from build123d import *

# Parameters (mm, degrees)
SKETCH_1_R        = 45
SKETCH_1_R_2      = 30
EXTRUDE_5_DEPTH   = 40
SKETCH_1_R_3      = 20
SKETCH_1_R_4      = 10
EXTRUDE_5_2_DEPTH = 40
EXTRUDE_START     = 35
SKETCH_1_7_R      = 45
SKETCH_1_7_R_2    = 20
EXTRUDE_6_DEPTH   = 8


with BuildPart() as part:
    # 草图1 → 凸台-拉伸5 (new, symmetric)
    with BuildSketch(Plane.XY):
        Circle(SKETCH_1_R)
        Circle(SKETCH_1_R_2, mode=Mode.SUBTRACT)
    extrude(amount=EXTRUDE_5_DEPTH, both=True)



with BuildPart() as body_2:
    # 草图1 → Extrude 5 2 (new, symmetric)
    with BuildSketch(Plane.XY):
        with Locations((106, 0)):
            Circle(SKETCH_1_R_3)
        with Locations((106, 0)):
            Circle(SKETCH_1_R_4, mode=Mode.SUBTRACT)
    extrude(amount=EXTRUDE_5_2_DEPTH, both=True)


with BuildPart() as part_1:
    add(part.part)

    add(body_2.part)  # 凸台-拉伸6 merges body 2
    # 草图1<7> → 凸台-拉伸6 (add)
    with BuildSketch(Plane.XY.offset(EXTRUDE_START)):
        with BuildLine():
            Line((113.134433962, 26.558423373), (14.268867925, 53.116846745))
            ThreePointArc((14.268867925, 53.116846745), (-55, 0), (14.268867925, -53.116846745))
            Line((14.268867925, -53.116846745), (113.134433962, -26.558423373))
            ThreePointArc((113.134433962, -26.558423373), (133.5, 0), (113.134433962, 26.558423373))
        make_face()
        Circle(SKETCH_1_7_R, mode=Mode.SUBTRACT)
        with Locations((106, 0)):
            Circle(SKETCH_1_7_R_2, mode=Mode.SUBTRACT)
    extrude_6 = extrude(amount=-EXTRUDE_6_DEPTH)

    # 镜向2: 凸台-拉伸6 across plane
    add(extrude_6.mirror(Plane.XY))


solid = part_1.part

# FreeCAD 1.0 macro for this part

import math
import FreeCAD as App
import Part
import Sketcher

V = App.Vector
Q = App.Units.Quantity

doc = App.newDocument("Part")
body = doc.addObject("PartDesign::Body", "Body")

sketch1 = body.newObject("Sketcher::SketchObject", "Sketch")
sketch1.AttachmentSupport = (doc.getObject("XY_Plane"), [""])
sketch1.MapMode = "FlatFace"
sketch1.addGeometry(Part.Circle(V(0, 0, 0), V(0, 0, 1), 45), False)
sketch1.addGeometry(Part.Circle(V(0, 0, 0), V(0, 0, 1), 30), False)
sketch1.addConstraint(Sketcher.Constraint("Coincident", 0, 3, -1, 1))
sketch1.addConstraint(Sketcher.Constraint("Coincident", 1, 3, -1, 1))
sketch1.addConstraint(Sketcher.Constraint("Diameter", 0, Q("90 mm")))
sketch1.addConstraint(Sketcher.Constraint("Diameter", 1, Q("60 mm")))
pad1 = body.newObject("PartDesign::Pad", "Pad")
pad1.Profile = sketch1
pad1.Length = 80
pad1.Midplane = True
body2 = doc.addObject("PartDesign::Body", "Body001")

sketch2 = body2.newObject("Sketcher::SketchObject", "Sketch001")
sketch2.AttachmentSupport = (doc.getObject("XY_Plane001"), [""])
sketch2.MapMode = "FlatFace"
sketch2.addGeometry(Part.Circle(V(106, 0, 0), V(0, 0, 1), 20), False)
sketch2.addGeometry(Part.Circle(V(106, 0, 0), V(0, 0, 1), 10), False)
sketch2.addConstraint(Sketcher.Constraint("Coincident", 1, 3, 0, 3))
sketch2.addConstraint(Sketcher.Constraint("PointOnObject", 0, 3, -1))
sketch2.addConstraint(Sketcher.Constraint("Diameter", 0, Q("40 mm")))
sketch2.addConstraint(Sketcher.Constraint("Diameter", 1, Q("20 mm")))
sketch2.addConstraint(Sketcher.Constraint("DistanceX", -1, 1, 0, 3, Q("106 mm")))
pad2 = body2.newObject("PartDesign::Pad", "Pad001")
pad2.Profile = sketch2
pad2.Length = 80
pad2.Midplane = True
body.AllowCompound = True
doc.recompute()

boolean = body.newObject("PartDesign::Boolean", "Boolean")
boolean.Type = "Fuse"
boolean.addObjects([body2])

sketch3 = body.newObject("Sketcher::SketchObject", "Sketch002")
sketch3.AttachmentSupport = (doc.getObject("XY_Plane"), [""])
sketch3.MapMode = "FlatFace"
sketch3.AttachmentOffset = App.Placement(V(0, 0, 35), App.Rotation())
sketch3.addGeometry(Part.LineSegment(V(113.134434, 26.558423, 0), V(14.268868, 53.116847, 0)), False)
sketch3.addGeometry(Part.ArcOfCircle(Part.Circle(V(0, 0, 0), V(0, 0, 1), 55), math.radians(74.963522), math.radians(285.036478)), False)
sketch3.addGeometry(Part.LineSegment(V(14.268868, -53.116847, 0), V(113.134434, -26.558423, 0)), False)
sketch3.addGeometry(Part.ArcOfCircle(Part.Circle(V(106, 0, 0), V(0, 0, 1), 27.5), math.radians(-74.963522), math.radians(74.963522)), False)
sketch3.addGeometry(Part.Circle(V(0, 0, 0), V(0, 0, 1), 45), False)
sketch3.addGeometry(Part.Circle(V(106, 0, 0), V(0, 0, 1), 20), False)
sketch3.addConstraint(Sketcher.Constraint("Tangent", 0, 2, 1, 1))
sketch3.addConstraint(Sketcher.Constraint("Tangent", 1, 2, 2, 1))
sketch3.addConstraint(Sketcher.Constraint("Tangent", 2, 2, 3, 1))
sketch3.addConstraint(Sketcher.Constraint("Tangent", 3, 2, 0, 1))
sketch3.addConstraint(Sketcher.Constraint("Coincident", 1, 3, -1, 1))
sketch3.addConstraint(Sketcher.Constraint("Coincident", 4, 3, -1, 1))
sketch3.addConstraint(Sketcher.Constraint("Coincident", 5, 3, 3, 3))
sketch3.addConstraint(Sketcher.Constraint("PointOnObject", 3, 3, -1))
sketch3.addConstraint(Sketcher.Constraint("Diameter", 4, Q("90 mm")))
sketch3.addConstraint(Sketcher.Constraint("Diameter", 5, Q("40 mm")))
sketch3.addConstraint(Sketcher.Constraint("Radius", 1, Q("55 mm")))
sketch3.addConstraint(Sketcher.Constraint("Radius", 3, Q("27.5 mm")))
sketch3.addConstraint(Sketcher.Constraint("DistanceX", -1, 1, 3, 3, Q("106 mm")))
pad3 = body.newObject("PartDesign::Pad", "Pad002")
pad3.Profile = sketch3
pad3.Length = 8
pad3.Reversed = True
doc.recompute()

mirrored = body.newObject("PartDesign::Mirrored", "Mirrored")
mirrored.Originals = [pad3]
mirrored.MirrorPlane = (doc.getObject("XY_Plane"), [""])
body.Tip = mirrored

doc.recompute()
